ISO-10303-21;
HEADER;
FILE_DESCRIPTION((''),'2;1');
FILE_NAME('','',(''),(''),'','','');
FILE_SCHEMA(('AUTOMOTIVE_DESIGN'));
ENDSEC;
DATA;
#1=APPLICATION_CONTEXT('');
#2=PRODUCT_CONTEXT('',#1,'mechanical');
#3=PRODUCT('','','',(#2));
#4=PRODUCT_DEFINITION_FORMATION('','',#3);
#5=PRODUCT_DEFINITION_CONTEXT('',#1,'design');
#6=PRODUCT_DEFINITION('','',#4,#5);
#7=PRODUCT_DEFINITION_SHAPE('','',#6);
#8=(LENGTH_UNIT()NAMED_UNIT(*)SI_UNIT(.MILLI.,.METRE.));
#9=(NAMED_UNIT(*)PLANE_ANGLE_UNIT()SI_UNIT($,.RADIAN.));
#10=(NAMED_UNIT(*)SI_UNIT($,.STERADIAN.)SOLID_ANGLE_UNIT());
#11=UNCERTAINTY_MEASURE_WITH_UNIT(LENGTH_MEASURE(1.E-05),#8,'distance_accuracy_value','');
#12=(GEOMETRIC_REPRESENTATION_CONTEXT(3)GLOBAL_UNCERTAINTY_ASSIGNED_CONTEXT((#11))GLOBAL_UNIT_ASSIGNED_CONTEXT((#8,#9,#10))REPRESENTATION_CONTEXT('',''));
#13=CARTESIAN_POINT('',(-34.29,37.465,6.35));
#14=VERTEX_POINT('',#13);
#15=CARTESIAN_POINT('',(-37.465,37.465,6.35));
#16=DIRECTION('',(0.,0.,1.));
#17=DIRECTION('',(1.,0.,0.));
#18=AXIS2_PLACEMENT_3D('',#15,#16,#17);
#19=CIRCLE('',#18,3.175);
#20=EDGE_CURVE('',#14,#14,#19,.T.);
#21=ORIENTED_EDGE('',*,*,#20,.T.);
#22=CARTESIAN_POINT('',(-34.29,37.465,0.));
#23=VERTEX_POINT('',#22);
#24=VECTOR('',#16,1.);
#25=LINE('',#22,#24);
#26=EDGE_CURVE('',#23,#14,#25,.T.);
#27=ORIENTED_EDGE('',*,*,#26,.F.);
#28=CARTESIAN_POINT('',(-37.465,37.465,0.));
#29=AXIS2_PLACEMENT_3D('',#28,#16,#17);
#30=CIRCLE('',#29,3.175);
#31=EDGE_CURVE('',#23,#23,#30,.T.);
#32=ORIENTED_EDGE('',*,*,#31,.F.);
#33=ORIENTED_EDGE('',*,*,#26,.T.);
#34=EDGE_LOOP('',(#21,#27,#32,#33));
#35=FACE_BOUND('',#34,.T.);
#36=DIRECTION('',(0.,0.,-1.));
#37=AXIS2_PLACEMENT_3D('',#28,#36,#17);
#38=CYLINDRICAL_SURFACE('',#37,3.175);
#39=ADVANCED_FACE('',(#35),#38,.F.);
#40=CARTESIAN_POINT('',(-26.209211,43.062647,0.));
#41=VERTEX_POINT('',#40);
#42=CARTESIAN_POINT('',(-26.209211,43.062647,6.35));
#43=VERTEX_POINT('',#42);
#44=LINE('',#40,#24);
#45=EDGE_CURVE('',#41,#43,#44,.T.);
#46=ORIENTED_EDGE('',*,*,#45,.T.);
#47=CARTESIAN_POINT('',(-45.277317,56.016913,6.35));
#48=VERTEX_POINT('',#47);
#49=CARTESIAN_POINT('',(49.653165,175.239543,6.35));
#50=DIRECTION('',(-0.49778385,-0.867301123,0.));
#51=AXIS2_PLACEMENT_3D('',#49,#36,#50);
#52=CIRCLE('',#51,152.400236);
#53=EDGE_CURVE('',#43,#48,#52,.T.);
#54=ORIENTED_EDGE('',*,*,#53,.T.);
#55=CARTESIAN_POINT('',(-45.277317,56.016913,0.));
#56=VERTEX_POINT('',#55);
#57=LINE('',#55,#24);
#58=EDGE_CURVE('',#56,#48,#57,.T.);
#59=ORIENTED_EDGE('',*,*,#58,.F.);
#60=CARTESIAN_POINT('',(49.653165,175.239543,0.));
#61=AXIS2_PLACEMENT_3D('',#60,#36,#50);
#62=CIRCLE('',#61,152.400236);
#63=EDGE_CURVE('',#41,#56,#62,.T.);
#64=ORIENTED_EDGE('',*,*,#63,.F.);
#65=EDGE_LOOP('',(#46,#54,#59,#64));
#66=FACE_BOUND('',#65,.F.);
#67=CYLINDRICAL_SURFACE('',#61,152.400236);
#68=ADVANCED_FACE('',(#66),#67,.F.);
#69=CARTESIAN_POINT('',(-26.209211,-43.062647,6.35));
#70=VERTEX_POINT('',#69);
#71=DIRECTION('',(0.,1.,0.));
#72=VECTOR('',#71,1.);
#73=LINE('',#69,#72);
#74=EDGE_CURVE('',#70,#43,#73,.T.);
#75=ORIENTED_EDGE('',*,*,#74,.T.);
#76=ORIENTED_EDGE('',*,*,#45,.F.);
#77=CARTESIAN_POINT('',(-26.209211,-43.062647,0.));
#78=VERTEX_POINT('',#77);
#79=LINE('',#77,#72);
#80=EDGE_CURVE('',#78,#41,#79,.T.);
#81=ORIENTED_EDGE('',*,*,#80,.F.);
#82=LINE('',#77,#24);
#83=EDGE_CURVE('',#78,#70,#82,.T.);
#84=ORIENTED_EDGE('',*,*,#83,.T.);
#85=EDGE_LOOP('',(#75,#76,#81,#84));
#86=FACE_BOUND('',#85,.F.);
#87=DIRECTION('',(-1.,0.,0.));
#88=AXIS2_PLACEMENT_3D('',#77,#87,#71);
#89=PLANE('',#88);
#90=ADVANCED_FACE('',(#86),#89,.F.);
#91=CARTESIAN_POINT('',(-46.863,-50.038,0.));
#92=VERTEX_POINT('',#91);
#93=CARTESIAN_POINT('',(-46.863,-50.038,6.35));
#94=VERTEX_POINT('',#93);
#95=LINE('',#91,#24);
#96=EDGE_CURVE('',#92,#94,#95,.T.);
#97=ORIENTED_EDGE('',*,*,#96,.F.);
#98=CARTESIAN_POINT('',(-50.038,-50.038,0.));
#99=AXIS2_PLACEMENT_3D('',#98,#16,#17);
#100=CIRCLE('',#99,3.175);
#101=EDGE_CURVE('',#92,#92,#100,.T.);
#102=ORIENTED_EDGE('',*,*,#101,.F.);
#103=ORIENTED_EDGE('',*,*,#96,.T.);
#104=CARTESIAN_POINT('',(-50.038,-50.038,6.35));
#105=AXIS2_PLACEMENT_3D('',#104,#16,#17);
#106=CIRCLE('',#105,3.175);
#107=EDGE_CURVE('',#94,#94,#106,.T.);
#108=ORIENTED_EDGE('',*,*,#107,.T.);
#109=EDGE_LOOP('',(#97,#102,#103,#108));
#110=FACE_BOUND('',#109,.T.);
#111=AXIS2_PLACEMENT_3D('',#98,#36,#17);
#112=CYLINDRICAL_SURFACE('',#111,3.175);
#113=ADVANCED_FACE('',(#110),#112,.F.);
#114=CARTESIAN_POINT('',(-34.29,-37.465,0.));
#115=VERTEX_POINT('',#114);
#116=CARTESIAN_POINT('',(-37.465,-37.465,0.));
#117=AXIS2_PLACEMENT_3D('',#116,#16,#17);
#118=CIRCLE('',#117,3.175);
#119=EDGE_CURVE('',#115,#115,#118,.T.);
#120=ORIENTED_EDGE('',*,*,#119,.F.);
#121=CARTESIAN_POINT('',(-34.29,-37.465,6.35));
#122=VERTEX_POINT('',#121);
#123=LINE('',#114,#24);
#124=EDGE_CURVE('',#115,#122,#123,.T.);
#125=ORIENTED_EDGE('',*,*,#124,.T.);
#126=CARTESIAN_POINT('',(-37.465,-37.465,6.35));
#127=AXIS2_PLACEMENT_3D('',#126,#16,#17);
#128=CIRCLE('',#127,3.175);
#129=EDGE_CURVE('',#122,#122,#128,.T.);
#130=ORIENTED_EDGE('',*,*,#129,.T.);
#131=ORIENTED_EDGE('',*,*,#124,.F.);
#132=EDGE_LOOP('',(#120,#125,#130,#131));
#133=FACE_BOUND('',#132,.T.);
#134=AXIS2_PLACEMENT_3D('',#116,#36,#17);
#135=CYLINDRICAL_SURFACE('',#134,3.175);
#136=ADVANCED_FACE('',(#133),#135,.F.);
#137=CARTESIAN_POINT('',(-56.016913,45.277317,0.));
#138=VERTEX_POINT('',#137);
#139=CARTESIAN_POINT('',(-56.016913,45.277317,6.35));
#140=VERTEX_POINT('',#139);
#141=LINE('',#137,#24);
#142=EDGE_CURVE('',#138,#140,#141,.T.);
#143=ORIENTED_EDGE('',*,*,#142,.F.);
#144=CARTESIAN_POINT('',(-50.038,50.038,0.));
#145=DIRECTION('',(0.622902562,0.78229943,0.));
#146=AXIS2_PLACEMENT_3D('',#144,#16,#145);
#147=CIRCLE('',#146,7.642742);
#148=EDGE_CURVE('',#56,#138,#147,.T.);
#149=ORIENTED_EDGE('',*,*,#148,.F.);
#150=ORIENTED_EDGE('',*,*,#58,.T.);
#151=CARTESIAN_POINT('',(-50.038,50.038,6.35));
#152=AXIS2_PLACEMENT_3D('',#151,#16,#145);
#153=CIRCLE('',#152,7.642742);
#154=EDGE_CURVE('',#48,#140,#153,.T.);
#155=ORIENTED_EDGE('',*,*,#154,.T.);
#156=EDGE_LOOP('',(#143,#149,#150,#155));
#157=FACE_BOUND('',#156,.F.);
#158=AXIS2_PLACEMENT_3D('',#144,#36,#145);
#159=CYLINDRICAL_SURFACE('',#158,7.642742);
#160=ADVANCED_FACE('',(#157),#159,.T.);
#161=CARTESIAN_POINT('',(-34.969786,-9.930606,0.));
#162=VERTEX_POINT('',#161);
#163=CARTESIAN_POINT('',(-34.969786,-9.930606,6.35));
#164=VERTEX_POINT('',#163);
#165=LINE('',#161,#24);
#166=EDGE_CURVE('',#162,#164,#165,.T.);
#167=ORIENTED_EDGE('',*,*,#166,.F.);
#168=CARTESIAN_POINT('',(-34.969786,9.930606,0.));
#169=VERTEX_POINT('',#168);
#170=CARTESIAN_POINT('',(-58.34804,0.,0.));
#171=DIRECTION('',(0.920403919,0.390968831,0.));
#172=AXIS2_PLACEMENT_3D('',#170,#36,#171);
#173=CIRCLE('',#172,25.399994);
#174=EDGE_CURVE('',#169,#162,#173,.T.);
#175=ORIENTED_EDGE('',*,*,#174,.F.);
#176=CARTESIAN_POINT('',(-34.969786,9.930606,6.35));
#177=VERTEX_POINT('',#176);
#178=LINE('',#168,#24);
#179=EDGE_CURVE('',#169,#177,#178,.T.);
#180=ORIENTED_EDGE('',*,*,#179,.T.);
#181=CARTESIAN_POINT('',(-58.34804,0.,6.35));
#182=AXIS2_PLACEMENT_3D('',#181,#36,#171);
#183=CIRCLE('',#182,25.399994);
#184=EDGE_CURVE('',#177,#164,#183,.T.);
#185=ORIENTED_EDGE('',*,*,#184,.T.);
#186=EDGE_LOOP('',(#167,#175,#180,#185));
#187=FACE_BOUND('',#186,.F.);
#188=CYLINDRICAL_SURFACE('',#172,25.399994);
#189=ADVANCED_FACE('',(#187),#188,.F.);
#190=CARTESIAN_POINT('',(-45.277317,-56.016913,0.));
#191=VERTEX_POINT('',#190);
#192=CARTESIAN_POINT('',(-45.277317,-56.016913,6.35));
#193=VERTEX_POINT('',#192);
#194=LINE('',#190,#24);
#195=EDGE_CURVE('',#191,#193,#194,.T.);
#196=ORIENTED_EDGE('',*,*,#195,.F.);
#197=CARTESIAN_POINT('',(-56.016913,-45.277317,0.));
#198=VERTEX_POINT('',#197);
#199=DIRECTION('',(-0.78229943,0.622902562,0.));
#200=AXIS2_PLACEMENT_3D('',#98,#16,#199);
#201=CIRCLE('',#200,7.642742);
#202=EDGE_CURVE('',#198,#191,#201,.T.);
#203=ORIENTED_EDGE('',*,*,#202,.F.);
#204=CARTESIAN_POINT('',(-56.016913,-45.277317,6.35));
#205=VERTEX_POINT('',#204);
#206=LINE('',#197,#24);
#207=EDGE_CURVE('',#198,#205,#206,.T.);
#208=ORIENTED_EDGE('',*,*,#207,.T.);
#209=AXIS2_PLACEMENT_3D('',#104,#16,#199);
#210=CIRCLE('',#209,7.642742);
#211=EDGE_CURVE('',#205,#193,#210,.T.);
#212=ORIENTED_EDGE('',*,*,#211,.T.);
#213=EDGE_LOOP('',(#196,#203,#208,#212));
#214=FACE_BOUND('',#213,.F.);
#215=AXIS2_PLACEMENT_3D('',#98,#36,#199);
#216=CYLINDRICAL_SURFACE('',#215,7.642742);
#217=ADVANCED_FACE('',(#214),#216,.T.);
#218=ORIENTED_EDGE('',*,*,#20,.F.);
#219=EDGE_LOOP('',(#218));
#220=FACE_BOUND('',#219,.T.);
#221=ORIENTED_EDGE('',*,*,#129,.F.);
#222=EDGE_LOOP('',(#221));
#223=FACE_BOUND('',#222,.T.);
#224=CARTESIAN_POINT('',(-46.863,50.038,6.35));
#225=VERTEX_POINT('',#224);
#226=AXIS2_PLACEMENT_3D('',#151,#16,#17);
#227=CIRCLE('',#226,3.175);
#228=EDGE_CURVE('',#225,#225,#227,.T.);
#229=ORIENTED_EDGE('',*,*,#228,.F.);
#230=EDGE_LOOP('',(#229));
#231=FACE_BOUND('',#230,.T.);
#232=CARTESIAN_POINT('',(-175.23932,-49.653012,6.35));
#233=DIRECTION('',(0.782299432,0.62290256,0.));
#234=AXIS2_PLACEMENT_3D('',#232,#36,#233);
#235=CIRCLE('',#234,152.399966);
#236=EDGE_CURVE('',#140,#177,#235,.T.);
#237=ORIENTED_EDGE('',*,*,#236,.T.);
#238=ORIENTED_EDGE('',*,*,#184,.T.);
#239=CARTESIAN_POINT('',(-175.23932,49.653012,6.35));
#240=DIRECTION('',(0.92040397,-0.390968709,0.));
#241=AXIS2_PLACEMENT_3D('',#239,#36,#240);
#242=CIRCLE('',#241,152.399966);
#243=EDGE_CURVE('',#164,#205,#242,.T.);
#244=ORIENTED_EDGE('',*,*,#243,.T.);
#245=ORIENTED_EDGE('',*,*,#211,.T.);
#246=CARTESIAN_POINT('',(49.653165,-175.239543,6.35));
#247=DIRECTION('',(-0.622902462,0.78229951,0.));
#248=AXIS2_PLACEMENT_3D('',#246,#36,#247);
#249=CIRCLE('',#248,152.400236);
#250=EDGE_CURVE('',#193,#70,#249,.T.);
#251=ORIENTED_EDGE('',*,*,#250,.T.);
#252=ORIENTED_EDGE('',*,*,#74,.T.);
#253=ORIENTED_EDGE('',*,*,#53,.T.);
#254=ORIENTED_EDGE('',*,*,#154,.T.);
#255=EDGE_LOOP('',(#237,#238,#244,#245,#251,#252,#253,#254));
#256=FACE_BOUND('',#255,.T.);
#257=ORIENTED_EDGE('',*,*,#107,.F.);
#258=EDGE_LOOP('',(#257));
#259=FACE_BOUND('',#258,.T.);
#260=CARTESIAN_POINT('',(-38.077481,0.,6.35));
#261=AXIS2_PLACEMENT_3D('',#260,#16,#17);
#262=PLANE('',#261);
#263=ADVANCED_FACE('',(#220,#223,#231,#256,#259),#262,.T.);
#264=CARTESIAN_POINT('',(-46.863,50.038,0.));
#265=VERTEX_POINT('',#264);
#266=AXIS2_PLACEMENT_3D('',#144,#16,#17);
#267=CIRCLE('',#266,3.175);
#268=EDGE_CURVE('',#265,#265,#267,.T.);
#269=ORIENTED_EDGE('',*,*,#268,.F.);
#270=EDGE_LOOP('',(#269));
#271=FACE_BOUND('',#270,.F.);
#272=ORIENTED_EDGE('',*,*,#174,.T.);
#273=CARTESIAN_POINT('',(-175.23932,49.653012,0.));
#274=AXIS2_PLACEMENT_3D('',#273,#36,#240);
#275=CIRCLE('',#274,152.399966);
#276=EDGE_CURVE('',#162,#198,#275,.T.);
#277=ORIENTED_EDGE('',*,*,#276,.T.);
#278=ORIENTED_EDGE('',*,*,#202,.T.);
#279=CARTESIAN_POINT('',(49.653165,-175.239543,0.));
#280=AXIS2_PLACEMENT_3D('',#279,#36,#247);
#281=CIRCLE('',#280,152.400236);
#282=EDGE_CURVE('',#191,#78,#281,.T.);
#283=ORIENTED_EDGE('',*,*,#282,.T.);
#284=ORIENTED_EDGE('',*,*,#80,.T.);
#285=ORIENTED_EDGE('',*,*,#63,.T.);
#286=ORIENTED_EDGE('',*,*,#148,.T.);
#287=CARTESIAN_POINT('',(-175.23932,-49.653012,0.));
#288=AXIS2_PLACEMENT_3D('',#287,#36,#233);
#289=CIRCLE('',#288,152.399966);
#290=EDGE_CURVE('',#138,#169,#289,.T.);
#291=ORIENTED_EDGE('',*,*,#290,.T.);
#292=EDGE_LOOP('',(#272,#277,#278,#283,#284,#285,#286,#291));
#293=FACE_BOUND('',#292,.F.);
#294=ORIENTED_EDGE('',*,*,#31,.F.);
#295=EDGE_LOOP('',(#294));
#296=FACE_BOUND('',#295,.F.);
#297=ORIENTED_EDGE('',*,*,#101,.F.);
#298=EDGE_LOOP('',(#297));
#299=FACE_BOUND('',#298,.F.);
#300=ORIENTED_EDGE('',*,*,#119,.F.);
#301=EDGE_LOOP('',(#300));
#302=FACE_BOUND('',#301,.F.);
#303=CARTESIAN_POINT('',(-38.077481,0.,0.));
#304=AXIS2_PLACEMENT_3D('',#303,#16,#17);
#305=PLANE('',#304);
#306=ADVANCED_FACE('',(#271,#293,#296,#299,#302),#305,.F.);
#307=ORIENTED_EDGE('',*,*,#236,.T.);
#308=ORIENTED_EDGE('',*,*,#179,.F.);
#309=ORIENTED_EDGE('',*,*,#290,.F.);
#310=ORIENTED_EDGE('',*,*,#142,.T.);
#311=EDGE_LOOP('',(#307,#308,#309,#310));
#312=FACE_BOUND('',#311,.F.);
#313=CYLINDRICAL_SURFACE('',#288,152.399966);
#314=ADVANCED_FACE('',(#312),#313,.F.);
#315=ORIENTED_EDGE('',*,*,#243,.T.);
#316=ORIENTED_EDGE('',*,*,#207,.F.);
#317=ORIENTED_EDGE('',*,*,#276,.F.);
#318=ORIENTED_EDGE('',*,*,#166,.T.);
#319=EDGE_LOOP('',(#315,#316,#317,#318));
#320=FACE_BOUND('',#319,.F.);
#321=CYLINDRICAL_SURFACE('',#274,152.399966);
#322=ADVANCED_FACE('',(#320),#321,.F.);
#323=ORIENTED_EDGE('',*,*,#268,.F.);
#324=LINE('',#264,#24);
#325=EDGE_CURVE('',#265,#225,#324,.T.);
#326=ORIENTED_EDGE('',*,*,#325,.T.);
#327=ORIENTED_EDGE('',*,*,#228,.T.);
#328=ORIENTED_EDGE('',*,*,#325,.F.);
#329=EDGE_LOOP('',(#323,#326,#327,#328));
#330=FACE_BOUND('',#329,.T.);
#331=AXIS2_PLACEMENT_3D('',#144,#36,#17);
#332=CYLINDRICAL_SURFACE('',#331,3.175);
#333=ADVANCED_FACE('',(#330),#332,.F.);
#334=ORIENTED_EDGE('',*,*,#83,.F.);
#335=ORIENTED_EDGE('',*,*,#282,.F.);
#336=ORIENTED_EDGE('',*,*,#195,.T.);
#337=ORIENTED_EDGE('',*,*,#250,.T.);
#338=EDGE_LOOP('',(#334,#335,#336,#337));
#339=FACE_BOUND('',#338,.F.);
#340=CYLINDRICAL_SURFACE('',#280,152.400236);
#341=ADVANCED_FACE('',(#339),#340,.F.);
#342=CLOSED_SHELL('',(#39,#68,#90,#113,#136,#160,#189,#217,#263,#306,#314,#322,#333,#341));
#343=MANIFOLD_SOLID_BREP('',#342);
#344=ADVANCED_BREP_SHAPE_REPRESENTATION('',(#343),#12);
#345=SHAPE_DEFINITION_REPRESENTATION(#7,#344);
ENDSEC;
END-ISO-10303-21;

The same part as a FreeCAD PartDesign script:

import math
import FreeCAD as App
import Part
import Sketcher

V = App.Vector
Q = App.Units.Quantity

doc = App.newDocument("Part")
params = doc.addObject("Spreadsheet::Sheet", "Params")
for row, (alias, value) in enumerate([
    ("sketch1_diameter", "0.25 in"),
    ("pad1_length", "0.25 in"),
], start=1):
    params.set(f"A{row}", alias)
    params.set(f"B{row}", "=" + value)
    params.setAlias(f"B{row}", alias)

body = doc.addObject("PartDesign::Body", "Body")

sketch1 = body.newObject("Sketcher::SketchObject", "Sketch")
sketch1.AttachmentSupport = (doc.getObject("XY_Plane"), [""])
sketch1.MapMode = "FlatFace"
sketch1.addGeometry([
    Part.ArcOfCircle(Part.Circle(V(49.7, 175.2, 0), V(0, 0, 1), 152.4), math.radians(-128.53), math.radians(-119.85)),
    Part.ArcOfCircle(Part.Circle(V(-50, 50, 0), V(0, 0, 1), 7.6), math.radians(51), math.radians(219)),
    Part.ArcOfCircle(Part.Circle(V(-175.2, -49.7, 0), V(0, 0, 1), 152.4), math.radians(23.01), math.radians(38.53)),
    Part.ArcOfCircle(Part.Circle(V(-58.3, 0, 0), V(0, 0, 1), 25.4), math.radians(-23), math.radians(23)),
    Part.ArcOfCircle(Part.Circle(V(-175.2, 49.7, 0), V(0, 0, 1), 152.4), math.radians(-38.53), math.radians(-23.01)),
    Part.ArcOfCircle(Part.Circle(V(-50, -50, 0), V(0, 0, 1), 7.6), math.radians(141), math.radians(309)),
    Part.ArcOfCircle(Part.Circle(V(49.7, -175.2, 0), V(0, 0, 1), 152.4), math.radians(119.85), math.radians(128.53)),
    Part.LineSegment(V(-26.2, -43.1, 0), V(-26.2, 43.1, 0)),
    Part.Circle(V(-50, -50, 0), V(0, 0, 1), 3.2),
    Part.Circle(V(-37.5, -37.5, 0), V(0, 0, 1), 3.2),
    Part.Circle(V(-50, 50, 0), V(0, 0, 1), 3.2),
    Part.Circle(V(-37.5, 37.5, 0), V(0, 0, 1), 3.2),
], False)
sketch1.addConstraint([
    Sketcher.Constraint("Tangent", 0, 1, 1, 1),
    Sketcher.Constraint("Tangent", 1, 2, 2, 2),
    Sketcher.Constraint("Tangent", 2, 1, 3, 2),
    Sketcher.Constraint("Tangent", 3, 1, 4, 2),
    Sketcher.Constraint("Tangent", 4, 1, 5, 1),
    Sketcher.Constraint("Tangent", 5, 2, 6, 2),
    Sketcher.Constraint("Coincident", 6, 1, 7, 1),
    Sketcher.Constraint("Coincident", 7, 2, 0, 2),
    Sketcher.Constraint("Vertical", 7),
    Sketcher.Constraint("Coincident", 8, 3, 5, 3),
    Sketcher.Constraint("Coincident", 10, 3, 1, 3),
    Sketcher.Constraint("Equal", 2, 4),
    Sketcher.Constraint("Equal", 1, 5),
    Sketcher.Constraint("Equal", 0, 6),
    Sketcher.Constraint("Equal", 8, 9),
    Sketcher.Constraint("Equal", 9, 10),
    Sketcher.Constraint("Equal", 10, 11),
    Sketcher.Constraint("Symmetric", 2, 3, 4, 3, -1),
    Sketcher.Constraint("Symmetric", 0, 3, 6, 3, -1),
    Sketcher.Constraint("Symmetric", 9, 3, 11, 3, -1),
    Sketcher.Constraint("Diameter", 8, Q("0.25 in")),
    Sketcher.Constraint("DistanceX", 1, 3, -1, 1, Q("1.97 in")),
    Sketcher.Constraint("DistanceY", -1, 1, 1, 3, Q("1.97 in")),
    Sketcher.Constraint("DistanceY", 9, 3, 11, 3, Q("2.95 in")),
    Sketcher.Constraint("DistanceX", 9, 3, -1, 1, Q("1.475 in")),
    Sketcher.Constraint("Radius", 1, Q("7.642742 mm")),
    Sketcher.Constraint("Radius", 0, Q("152.400236 mm")),
    Sketcher.Constraint("Radius", 2, Q("152.399966 mm")),
    Sketcher.Constraint("Radius", 3, Q("25.399994 mm")),
    Sketcher.Constraint("DistanceX", 1, 2, 7, 2, Q("29.807702 mm")),
    Sketcher.Constraint("DistanceY", 7, 1, 7, 2, Q("86.125294 mm")),
    Sketcher.Constraint("DistanceX", 2, 3, -1, 1, Q("175.23932 mm")),
])
sketch1.setExpression("Constraints[20]", "Params.sketch1_diameter")
pad1 = body.newObject("PartDesign::Pad", "Pad")
pad1.Profile = sketch1
pad1.setExpression("Length", "Params.pad1_length")

doc.recompute()
